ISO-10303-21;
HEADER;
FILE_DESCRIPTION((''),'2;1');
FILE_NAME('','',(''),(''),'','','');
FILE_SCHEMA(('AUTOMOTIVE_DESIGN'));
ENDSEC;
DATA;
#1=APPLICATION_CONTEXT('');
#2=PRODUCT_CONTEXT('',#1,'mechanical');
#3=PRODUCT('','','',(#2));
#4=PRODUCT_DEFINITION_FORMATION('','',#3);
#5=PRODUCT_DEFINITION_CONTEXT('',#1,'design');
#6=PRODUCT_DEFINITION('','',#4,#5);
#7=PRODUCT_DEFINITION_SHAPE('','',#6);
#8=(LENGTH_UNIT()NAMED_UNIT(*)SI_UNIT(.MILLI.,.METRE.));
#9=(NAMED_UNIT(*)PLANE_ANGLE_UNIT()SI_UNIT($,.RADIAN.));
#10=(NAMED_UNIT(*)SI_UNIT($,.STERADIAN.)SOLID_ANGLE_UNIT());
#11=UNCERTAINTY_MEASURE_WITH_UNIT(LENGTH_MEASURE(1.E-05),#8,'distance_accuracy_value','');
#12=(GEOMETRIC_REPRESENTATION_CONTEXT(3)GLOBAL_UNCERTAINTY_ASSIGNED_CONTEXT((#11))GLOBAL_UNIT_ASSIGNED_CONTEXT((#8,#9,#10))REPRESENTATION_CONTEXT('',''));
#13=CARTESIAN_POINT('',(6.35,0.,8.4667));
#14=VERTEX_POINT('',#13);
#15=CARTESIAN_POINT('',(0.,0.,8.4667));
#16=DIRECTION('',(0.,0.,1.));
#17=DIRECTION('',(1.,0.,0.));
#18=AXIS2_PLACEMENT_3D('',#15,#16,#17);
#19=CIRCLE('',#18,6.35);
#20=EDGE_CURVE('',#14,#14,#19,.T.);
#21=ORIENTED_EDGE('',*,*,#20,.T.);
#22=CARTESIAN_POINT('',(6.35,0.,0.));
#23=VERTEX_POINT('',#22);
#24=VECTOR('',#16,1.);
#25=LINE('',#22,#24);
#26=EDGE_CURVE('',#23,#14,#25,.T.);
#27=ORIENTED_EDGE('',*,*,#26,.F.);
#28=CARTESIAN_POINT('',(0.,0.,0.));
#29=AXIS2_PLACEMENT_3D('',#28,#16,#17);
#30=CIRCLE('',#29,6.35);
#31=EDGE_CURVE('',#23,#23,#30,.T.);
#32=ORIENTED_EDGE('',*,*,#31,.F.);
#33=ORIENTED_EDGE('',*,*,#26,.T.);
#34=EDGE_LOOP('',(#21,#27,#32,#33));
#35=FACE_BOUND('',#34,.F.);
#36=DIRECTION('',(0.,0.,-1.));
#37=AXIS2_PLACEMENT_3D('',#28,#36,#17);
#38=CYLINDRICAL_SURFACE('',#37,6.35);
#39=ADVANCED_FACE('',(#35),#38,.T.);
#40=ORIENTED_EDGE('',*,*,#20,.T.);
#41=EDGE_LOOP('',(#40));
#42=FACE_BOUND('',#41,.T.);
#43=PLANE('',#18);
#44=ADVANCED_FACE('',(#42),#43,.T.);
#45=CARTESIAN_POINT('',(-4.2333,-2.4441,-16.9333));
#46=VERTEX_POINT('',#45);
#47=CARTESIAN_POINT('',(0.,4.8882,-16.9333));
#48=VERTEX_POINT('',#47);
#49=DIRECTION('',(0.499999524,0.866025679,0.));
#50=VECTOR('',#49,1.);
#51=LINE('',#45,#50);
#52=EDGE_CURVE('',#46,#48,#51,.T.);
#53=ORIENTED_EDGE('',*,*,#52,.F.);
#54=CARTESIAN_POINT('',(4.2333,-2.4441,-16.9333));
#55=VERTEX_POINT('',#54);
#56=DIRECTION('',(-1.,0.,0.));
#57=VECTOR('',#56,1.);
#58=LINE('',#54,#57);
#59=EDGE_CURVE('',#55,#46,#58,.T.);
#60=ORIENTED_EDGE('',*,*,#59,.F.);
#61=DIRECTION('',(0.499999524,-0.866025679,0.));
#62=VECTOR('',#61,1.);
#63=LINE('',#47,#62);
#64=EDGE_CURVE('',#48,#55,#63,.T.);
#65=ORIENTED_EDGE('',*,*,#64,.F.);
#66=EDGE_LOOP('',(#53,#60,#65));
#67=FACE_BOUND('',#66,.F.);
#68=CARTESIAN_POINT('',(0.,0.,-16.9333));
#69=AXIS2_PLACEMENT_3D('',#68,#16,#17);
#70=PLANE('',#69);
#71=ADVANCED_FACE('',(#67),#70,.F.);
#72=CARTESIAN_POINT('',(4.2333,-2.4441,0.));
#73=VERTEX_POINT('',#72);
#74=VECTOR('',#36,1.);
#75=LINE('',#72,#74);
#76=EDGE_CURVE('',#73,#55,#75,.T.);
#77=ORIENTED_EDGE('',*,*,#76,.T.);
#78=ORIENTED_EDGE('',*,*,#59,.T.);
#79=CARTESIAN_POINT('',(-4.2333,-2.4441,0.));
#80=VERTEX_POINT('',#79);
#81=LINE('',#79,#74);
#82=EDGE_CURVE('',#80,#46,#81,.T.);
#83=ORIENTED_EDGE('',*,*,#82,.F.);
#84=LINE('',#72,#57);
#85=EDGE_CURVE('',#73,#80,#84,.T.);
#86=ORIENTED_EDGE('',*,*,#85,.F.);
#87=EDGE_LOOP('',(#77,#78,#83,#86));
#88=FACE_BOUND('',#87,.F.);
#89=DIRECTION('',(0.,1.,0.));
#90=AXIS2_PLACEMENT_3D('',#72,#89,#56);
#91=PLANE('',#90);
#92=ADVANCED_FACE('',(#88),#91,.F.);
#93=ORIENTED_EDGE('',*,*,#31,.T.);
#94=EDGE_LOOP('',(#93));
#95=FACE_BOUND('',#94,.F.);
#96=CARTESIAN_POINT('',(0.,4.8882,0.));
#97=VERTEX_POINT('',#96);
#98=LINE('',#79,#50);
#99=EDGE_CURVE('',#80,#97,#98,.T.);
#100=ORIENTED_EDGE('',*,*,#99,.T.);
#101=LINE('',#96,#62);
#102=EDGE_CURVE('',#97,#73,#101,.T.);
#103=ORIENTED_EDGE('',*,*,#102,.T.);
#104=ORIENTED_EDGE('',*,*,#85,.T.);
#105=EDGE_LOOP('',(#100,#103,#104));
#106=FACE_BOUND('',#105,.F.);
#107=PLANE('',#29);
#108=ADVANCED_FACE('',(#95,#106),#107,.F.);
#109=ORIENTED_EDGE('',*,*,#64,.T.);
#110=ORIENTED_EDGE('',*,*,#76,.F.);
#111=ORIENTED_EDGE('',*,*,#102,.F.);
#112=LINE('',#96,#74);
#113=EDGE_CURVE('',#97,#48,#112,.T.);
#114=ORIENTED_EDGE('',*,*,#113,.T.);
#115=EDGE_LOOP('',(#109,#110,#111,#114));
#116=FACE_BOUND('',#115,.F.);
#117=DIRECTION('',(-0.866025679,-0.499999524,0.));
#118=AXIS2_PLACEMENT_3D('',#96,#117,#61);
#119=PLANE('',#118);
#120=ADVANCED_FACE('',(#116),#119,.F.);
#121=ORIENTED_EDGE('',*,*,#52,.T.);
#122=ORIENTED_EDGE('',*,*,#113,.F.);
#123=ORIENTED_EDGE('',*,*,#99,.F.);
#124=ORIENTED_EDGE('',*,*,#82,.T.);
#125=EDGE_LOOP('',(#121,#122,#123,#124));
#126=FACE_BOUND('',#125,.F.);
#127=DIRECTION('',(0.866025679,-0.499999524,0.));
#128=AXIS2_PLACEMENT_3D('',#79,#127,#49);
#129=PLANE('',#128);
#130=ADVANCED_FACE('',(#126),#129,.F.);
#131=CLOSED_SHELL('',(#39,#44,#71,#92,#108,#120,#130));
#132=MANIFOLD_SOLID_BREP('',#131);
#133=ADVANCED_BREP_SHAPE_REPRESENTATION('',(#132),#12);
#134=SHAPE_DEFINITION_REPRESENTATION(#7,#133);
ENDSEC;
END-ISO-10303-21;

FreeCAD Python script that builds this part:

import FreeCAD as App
import Part
import Sketcher
Q = App.Units.Quantity

doc = App.newDocument("Part")
body = doc.addObject("PartDesign::Body", "Body")

sketch1 = doc.addObject("Sketcher::SketchObject", "Sketch")
body.addObject(sketch1)
sketch1.AttachmentSupport = (doc.XY_Plane, [""])
sketch1.MapMode = "FlatFace"
sketch1.addGeometry(Part.LineSegment(App.Vector(0, 5, 0), App.Vector(-4, -2, 0)), False)
sketch1.addGeometry(Part.LineSegment(App.Vector(-4, -2, 0), App.Vector(4, -2, 0)), False)
sketch1.addGeometry(Part.LineSegment(App.Vector(4, -2, 0), App.Vector(0, 5, 0)), False)
sketch1.addConstraint(Sketcher.Constraint("Coincident", 0, 2, 1, 1))
sketch1.addConstraint(Sketcher.Constraint("Coincident", 1, 2, 2, 1))
sketch1.addConstraint(Sketcher.Constraint("Coincident", 2, 2, 0, 1))
sketch1.addConstraint(Sketcher.Constraint("Horizontal", 1))
sketch1.addConstraint(Sketcher.Constraint("PointOnObject", 2, 2, -2))
sketch1.addConstraint(Sketcher.Constraint("Equal", 0, 2))
sketch1.addConstraint(Sketcher.Constraint("Angle", 0, Q("-120 deg")))
sketch1.addConstraint(Sketcher.Constraint("DistanceX", 1, 1, 1, 2, Q("8.4666 mm")))
sketch1.addConstraint(Sketcher.Constraint("DistanceY", 0, 2, -1, 1, Q("2.444 mm")))
pad1 = doc.addObject("PartDesign::Pad", "Pad")
body.addObject(pad1)
pad1.Profile = sketch1
pad1.Length = 16.9333
pad1.Reversed = True

sketch2 = doc.addObject("Sketcher::SketchObject", "Sketch001")
body.addObject(sketch2)
sketch2.AttachmentSupport = (doc.XY_Plane, [""])
sketch2.MapMode = "FlatFace"
sketch2.addGeometry(Part.Circle(App.Vector(0, 0, 0), App.Vector(0, 0, 1), 6), False)
sketch2.addConstraint(Sketcher.Constraint("Coincident", 0, 3, -1, 1))
sketch2.addConstraint(Sketcher.Constraint("Diameter", 0, Q("0.5 in")))
pad2 = doc.addObject("PartDesign::Pad", "Pad001")
body.addObject(pad2)
pad2.Profile = sketch2
pad2.Length = 8.4667

doc.recompute()
